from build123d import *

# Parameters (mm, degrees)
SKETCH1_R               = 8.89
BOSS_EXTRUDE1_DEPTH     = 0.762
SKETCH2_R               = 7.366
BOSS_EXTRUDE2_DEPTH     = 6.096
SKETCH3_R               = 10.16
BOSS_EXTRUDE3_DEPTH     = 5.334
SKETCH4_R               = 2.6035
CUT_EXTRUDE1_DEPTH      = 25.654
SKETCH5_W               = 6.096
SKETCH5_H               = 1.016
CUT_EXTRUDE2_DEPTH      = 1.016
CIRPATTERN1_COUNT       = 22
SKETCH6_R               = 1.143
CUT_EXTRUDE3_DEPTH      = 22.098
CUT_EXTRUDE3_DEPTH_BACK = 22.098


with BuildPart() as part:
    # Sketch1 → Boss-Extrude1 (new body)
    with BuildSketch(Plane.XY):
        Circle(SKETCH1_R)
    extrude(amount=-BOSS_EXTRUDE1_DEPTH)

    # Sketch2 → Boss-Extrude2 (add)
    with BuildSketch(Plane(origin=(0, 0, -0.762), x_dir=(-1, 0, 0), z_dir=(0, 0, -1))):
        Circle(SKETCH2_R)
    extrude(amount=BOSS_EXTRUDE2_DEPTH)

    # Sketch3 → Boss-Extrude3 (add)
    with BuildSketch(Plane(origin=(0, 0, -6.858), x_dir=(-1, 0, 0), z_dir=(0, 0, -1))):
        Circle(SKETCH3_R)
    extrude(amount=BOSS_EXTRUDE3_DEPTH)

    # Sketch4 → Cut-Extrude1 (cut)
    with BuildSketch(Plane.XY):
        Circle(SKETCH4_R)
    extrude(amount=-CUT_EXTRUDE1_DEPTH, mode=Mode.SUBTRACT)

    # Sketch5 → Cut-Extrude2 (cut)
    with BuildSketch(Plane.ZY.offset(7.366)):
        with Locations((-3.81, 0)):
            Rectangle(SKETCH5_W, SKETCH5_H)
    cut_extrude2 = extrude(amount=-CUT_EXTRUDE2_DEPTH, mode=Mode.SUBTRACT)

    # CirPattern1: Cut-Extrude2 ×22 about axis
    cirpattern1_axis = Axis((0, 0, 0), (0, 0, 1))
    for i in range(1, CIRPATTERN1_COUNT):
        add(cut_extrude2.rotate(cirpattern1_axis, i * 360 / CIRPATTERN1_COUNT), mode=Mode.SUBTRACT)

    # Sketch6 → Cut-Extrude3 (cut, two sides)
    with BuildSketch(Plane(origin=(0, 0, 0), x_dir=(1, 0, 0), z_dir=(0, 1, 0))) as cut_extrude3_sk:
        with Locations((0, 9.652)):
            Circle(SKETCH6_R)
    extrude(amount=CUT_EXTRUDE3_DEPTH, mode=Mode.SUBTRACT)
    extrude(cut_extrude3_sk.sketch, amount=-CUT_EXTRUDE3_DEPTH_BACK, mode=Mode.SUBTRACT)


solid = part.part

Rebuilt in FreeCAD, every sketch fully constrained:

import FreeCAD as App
import Part
import Sketcher
Q = App.Units.Quantity

doc = App.newDocument("Part")
body = doc.addObject("PartDesign::Body", "Body")

# Sketch on XY plane
sketch1 = body.newObject("Sketcher::SketchObject", "Sketch")
sketch1.AttachmentSupport = (doc.getObject("XY_Plane"), [""])
sketch1.MapMode = "FlatFace"
sketch1.addGeometry(Part.Circle(App.Vector(0, 0, 0), App.Vector(0, 0, 1), 9), False)
sketch1.addConstraint(Sketcher.Constraint("Coincident", 0, 3, -1, 1))
sketch1.addConstraint(Sketcher.Constraint("Diameter", 0, Q("0.7 in")))
pad1 = body.newObject("PartDesign::Pad", "Pad")
pad1.Profile = sketch1
pad1.Length = Q("0.03 in")
pad1.Reversed = True

# Sketch on XY plane
sketch2 = body.newObject("Sketcher::SketchObject", "Sketch001")
sketch2.AttachmentSupport = (doc.getObject("XY_Plane"), [""])
sketch2.MapMode = "FlatFace"
sketch2.AttachmentOffset = App.Placement(App.Vector(0, 0, -0.03 * 25.4), App.Rotation())
sketch2.addGeometry(Part.Circle(App.Vector(0, 0, 0), App.Vector(0, 0, 1), 7), False)
sketch2.addConstraint(Sketcher.Constraint("Coincident", 0, 3, -1, 1))
sketch2.addConstraint(Sketcher.Constraint("Diameter", 0, Q("0.58 in")))
pad2 = body.newObject("PartDesign::Pad", "Pad001")
pad2.Profile = sketch2
pad2.Length = Q("0.24 in")
pad2.Reversed = True

# Sketch on XY plane
sketch3 = body.newObject("Sketcher::SketchObject", "Sketch002")
sketch3.AttachmentSupport = (doc.getObject("XY_Plane"), [""])
sketch3.MapMode = "FlatFace"
sketch3.AttachmentOffset = App.Placement(App.Vector(0, 0, -0.27 * 25.4), App.Rotation())
sketch3.addGeometry(Part.Circle(App.Vector(0, 0, 0), App.Vector(0, 0, 1), 10), False)
sketch3.addConstraint(Sketcher.Constraint("Coincident", 0, 3, -1, 1))
sketch3.addConstraint(Sketcher.Constraint("Diameter", 0, Q("0.8 in")))
pad3 = body.newObject("PartDesign::Pad", "Pad002")
pad3.Profile = sketch3
pad3.Length = Q("0.21 in")
pad3.Reversed = True

# Sketch on XY plane
sketch4 = body.newObject("Sketcher::SketchObject", "Sketch003")
sketch4.AttachmentSupport = (doc.getObject("XY_Plane"), [""])
sketch4.MapMode = "FlatFace"
sketch4.addGeometry(Part.Circle(App.Vector(0, 0, 0), App.Vector(0, 0, 1), 2.6), False)
sketch4.addConstraint(Sketcher.Constraint("Coincident", 0, 3, -1, 1))
sketch4.addConstraint(Sketcher.Constraint("Diameter", 0, Q("0.205 in")))
pocket1 = body.newObject("PartDesign::Pocket", "Pocket")
pocket1.Profile = sketch4
pocket1.Length = Q("1.01 in")

# Sketch on YZ plane
sketch5 = body.newObject("Sketcher::SketchObject", "Sketch004")
sketch5.AttachmentSupport = (doc.getObject("YZ_Plane"), [""])
sketch5.MapMode = "FlatFace"
sketch5.AttachmentOffset = App.Placement(App.Vector(0, 0, -0.29 * 25.4), App.Rotation())
sketch5.addGeometry(Part.LineSegment(App.Vector(0.5, -6.9, 0), App.Vector(-0.5, -6.9, 0)), False)
sketch5.addGeometry(Part.LineSegment(App.Vector(-0.5, -6.9, 0), App.Vector(-0.5, -0.8, 0)), False)
sketch5.addGeometry(Part.LineSegment(App.Vector(-0.5, -0.8, 0), App.Vector(0.5, -0.8, 0)), False)
sketch5.addGeometry(Part.LineSegment(App.Vector(0.5, -0.8, 0), App.Vector(0.5, -6.9, 0)), False)
sketch5.addConstraint(Sketcher.Constraint("Coincident", 0, 2, 1, 1))
sketch5.addConstraint(Sketcher.Constraint("Coincident", 1, 2, 2, 1))
sketch5.addConstraint(Sketcher.Constraint("Coincident", 2, 2, 3, 1))
sketch5.addConstraint(Sketcher.Constraint("Coincident", 3, 2, 0, 1))
sketch5.addConstraint(Sketcher.Constraint("Horizontal", 0))
sketch5.addConstraint(Sketcher.Constraint("Vertical", 1))
sketch5.addConstraint(Sketcher.Constraint("Horizontal", 2))
sketch5.addConstraint(Sketcher.Constraint("Vertical", 3))
sketch5.addConstraint(Sketcher.Constraint("DistanceX", 0, 2, 0, 1, Q("0.04 in")))
sketch5.addConstraint(Sketcher.Constraint("DistanceY", 1, 1, 1, 2, Q("0.24 in")))
sketch5.addConstraint(Sketcher.Constraint("DistanceX", 0, 2, -1, 1, Q("0.02 in")))
sketch5.addConstraint(Sketcher.Constraint("DistanceY", 0, 2, -1, 1, Q("0.27 in")))
pocket2 = body.newObject("PartDesign::Pocket", "Pocket001")
pocket2.Profile = sketch5
pocket2.Length = Q("0.04 in")
pocket2.Reversed = True
doc.recompute()

polarpattern = body.newObject("PartDesign::PolarPattern", "PolarPattern")
polarpattern.Originals = [pocket2]
polarpattern.Axis = (doc.getObject("Z_Axis"), [""])
polarpattern.Angle = 360
polarpattern.Occurrences = 22
body.Tip = polarpattern

# Sketch on XZ plane
sketch6 = body.newObject("Sketcher::SketchObject", "Sketch005")
sketch6.AttachmentSupport = (doc.getObject("XZ_Plane"), [""])
sketch6.MapMode = "FlatFace"
sketch6.addGeometry(Part.Circle(App.Vector(0, -9.7, 0), App.Vector(0, 0, 1), 1.1), False)
sketch6.addConstraint(Sketcher.Constraint("PointOnObject", 0, 3, -2))
sketch6.addConstraint(Sketcher.Constraint("Diameter", 0, Q("0.09 in")))
sketch6.addConstraint(Sketcher.Constraint("DistanceY", 0, 3, -1, 1, Q("0.38 in")))
pocket3 = body.newObject("PartDesign::Pocket", "Pocket002")
pocket3.Profile = sketch6
pocket3.Type = "ThroughAll"
pocket3.Midplane = True

doc.recompute()
